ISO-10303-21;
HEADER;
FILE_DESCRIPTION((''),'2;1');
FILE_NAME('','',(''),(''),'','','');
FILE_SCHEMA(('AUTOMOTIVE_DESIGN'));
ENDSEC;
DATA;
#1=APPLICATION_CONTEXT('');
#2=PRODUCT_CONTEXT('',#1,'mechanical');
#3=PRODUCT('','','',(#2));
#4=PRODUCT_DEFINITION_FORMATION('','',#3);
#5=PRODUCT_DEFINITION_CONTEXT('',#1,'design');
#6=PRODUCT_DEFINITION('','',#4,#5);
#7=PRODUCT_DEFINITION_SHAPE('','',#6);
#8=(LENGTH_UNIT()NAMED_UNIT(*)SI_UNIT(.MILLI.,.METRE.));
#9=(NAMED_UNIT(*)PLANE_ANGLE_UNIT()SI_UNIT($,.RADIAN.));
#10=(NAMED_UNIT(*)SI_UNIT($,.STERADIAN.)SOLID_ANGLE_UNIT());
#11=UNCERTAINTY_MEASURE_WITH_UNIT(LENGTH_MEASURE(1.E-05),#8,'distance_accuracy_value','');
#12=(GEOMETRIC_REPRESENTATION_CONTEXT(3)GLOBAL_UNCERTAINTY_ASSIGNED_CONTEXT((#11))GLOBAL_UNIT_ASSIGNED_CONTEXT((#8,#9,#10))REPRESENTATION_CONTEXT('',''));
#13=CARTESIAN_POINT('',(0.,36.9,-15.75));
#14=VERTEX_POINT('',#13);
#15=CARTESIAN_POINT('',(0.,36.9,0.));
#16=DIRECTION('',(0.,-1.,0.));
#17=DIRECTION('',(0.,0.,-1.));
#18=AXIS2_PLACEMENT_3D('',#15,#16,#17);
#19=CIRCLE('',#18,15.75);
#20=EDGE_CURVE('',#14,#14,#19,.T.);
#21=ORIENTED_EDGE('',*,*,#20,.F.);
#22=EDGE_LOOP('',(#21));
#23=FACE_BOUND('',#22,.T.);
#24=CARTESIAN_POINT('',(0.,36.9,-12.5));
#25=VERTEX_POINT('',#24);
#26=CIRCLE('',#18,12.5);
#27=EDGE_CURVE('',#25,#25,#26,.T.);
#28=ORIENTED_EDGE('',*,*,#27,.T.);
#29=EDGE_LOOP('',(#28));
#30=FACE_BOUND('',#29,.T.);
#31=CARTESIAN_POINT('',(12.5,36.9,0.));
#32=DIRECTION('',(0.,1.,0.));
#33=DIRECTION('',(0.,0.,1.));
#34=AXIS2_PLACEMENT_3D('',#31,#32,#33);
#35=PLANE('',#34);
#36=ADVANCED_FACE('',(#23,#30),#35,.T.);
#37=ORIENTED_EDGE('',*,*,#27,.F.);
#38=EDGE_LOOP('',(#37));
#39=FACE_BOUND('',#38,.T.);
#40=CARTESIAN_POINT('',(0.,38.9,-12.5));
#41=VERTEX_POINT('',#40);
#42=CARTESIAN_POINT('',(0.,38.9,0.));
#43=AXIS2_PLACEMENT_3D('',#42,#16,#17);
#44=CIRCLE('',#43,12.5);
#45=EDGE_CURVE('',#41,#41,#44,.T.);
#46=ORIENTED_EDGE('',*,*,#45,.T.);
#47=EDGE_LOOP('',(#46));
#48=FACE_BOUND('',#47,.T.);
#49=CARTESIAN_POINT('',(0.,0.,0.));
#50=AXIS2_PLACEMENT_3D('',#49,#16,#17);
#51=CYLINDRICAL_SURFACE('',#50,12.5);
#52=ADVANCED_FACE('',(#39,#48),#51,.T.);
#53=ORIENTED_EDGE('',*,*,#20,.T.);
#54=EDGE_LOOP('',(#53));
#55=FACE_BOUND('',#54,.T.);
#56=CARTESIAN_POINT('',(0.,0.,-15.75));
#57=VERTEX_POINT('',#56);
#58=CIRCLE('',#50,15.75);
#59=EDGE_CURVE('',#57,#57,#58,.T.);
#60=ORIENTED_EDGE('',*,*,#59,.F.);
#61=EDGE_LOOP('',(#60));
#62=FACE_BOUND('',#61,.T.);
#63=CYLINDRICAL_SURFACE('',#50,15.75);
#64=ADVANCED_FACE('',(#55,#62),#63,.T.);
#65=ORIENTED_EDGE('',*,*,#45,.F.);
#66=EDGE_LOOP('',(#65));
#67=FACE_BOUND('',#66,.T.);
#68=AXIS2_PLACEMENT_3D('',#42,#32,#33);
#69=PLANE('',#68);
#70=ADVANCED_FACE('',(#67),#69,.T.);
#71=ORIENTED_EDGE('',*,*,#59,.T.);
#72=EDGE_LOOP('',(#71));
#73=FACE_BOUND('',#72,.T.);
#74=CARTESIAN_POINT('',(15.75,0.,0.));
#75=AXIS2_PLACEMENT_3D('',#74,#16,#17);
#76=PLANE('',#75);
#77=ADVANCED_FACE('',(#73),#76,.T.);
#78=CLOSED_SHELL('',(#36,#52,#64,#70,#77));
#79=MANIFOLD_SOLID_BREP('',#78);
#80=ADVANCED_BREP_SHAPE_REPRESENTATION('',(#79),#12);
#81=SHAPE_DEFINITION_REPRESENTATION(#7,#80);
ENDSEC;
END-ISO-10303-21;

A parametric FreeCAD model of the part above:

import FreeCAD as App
import Part
import Sketcher
from FreeCAD import Vector

doc = App.newDocument("Part")
params = doc.addObject("Spreadsheet::Sheet", "Params")
for row, (alias, value) in enumerate([
    ("sketch1_height", "2 mm"),
    ("sketch1_width", "12.5 mm"),
    ("sketch1_height2", "38.9 mm"),
    ("sketch1_width2", "15.75 mm"),
    ("revolution_angle", "360 deg"),
], start=1):
    params.set(f"A{row}", alias)
    params.set(f"B{row}", "=" + value)
    params.setAlias(f"B{row}", alias)

body = doc.addObject("PartDesign::Body", "Body")

# Sketch on XY plane
sketch1 = body.newObject("Sketcher::SketchObject", "Sketch")
sketch1.AttachmentSupport = (doc.getObject("XY_Plane"), [""])
sketch1.MapMode = "FlatFace"
sketch1.addGeometry([
    Part.LineSegment(Vector(12.5, 38.9, 0), Vector(0, 38.9, 0)),  # 0
    Part.LineSegment(Vector(0, 38.9, 0), Vector(0, 0, 0)),  # 1
    Part.LineSegment(Vector(0, 0, 0), Vector(15.8, 0, 0)),  # 2
    Part.LineSegment(Vector(15.8, 0, 0), Vector(15.8, 36.9, 0)),  # 3
    Part.LineSegment(Vector(15.8, 36.9, 0), Vector(12.5, 36.9, 0)),  # 4
    Part.LineSegment(Vector(12.5, 36.9, 0), Vector(12.5, 38.9, 0)),  # 5
], False)
sketch1.addConstraint([
    Sketcher.Constraint("Coincident", 0, 2, 1, 1),
    Sketcher.Constraint("Coincident", 1, 2, 2, 1),
    Sketcher.Constraint("Coincident", 2, 2, 3, 1),
    Sketcher.Constraint("Coincident", 3, 2, 4, 1),
    Sketcher.Constraint("Coincident", 4, 2, 5, 1),
    Sketcher.Constraint("Coincident", 5, 2, 0, 1),
    Sketcher.Constraint("Horizontal", 0),
    Sketcher.Constraint("Vertical", 1),
    Sketcher.Constraint("Horizontal", 2),
    Sketcher.Constraint("Vertical", 3),
    Sketcher.Constraint("Horizontal", 4),
    Sketcher.Constraint("Vertical", 5),
    Sketcher.Constraint("Coincident", 1, 2, -1, 1),
    Sketcher.Constraint("DistanceY", 5, 1, 5, 2, 2.0),
    Sketcher.Constraint("DistanceX", 0, 2, 0, 1, 12.5),
    Sketcher.Constraint("DistanceY", 1, 2, 1, 1, 38.9),
    Sketcher.Constraint("DistanceX", 2, 1, 2, 2, 15.75),
])
sketch1.setExpression("Constraints[13]", "Params.sketch1_height")
sketch1.setExpression("Constraints[14]", "Params.sketch1_width")
sketch1.setExpression("Constraints[15]", "Params.sketch1_height2")
sketch1.setExpression("Constraints[16]", "Params.sketch1_width2")
revolution = body.newObject("PartDesign::Revolution", "Revolution")
revolution.Profile = sketch1
revolution.ReferenceAxis = (sketch1, ["V_Axis"])
revolution.setExpression("Angle", "Params.revolution_angle")

doc.recompute()
